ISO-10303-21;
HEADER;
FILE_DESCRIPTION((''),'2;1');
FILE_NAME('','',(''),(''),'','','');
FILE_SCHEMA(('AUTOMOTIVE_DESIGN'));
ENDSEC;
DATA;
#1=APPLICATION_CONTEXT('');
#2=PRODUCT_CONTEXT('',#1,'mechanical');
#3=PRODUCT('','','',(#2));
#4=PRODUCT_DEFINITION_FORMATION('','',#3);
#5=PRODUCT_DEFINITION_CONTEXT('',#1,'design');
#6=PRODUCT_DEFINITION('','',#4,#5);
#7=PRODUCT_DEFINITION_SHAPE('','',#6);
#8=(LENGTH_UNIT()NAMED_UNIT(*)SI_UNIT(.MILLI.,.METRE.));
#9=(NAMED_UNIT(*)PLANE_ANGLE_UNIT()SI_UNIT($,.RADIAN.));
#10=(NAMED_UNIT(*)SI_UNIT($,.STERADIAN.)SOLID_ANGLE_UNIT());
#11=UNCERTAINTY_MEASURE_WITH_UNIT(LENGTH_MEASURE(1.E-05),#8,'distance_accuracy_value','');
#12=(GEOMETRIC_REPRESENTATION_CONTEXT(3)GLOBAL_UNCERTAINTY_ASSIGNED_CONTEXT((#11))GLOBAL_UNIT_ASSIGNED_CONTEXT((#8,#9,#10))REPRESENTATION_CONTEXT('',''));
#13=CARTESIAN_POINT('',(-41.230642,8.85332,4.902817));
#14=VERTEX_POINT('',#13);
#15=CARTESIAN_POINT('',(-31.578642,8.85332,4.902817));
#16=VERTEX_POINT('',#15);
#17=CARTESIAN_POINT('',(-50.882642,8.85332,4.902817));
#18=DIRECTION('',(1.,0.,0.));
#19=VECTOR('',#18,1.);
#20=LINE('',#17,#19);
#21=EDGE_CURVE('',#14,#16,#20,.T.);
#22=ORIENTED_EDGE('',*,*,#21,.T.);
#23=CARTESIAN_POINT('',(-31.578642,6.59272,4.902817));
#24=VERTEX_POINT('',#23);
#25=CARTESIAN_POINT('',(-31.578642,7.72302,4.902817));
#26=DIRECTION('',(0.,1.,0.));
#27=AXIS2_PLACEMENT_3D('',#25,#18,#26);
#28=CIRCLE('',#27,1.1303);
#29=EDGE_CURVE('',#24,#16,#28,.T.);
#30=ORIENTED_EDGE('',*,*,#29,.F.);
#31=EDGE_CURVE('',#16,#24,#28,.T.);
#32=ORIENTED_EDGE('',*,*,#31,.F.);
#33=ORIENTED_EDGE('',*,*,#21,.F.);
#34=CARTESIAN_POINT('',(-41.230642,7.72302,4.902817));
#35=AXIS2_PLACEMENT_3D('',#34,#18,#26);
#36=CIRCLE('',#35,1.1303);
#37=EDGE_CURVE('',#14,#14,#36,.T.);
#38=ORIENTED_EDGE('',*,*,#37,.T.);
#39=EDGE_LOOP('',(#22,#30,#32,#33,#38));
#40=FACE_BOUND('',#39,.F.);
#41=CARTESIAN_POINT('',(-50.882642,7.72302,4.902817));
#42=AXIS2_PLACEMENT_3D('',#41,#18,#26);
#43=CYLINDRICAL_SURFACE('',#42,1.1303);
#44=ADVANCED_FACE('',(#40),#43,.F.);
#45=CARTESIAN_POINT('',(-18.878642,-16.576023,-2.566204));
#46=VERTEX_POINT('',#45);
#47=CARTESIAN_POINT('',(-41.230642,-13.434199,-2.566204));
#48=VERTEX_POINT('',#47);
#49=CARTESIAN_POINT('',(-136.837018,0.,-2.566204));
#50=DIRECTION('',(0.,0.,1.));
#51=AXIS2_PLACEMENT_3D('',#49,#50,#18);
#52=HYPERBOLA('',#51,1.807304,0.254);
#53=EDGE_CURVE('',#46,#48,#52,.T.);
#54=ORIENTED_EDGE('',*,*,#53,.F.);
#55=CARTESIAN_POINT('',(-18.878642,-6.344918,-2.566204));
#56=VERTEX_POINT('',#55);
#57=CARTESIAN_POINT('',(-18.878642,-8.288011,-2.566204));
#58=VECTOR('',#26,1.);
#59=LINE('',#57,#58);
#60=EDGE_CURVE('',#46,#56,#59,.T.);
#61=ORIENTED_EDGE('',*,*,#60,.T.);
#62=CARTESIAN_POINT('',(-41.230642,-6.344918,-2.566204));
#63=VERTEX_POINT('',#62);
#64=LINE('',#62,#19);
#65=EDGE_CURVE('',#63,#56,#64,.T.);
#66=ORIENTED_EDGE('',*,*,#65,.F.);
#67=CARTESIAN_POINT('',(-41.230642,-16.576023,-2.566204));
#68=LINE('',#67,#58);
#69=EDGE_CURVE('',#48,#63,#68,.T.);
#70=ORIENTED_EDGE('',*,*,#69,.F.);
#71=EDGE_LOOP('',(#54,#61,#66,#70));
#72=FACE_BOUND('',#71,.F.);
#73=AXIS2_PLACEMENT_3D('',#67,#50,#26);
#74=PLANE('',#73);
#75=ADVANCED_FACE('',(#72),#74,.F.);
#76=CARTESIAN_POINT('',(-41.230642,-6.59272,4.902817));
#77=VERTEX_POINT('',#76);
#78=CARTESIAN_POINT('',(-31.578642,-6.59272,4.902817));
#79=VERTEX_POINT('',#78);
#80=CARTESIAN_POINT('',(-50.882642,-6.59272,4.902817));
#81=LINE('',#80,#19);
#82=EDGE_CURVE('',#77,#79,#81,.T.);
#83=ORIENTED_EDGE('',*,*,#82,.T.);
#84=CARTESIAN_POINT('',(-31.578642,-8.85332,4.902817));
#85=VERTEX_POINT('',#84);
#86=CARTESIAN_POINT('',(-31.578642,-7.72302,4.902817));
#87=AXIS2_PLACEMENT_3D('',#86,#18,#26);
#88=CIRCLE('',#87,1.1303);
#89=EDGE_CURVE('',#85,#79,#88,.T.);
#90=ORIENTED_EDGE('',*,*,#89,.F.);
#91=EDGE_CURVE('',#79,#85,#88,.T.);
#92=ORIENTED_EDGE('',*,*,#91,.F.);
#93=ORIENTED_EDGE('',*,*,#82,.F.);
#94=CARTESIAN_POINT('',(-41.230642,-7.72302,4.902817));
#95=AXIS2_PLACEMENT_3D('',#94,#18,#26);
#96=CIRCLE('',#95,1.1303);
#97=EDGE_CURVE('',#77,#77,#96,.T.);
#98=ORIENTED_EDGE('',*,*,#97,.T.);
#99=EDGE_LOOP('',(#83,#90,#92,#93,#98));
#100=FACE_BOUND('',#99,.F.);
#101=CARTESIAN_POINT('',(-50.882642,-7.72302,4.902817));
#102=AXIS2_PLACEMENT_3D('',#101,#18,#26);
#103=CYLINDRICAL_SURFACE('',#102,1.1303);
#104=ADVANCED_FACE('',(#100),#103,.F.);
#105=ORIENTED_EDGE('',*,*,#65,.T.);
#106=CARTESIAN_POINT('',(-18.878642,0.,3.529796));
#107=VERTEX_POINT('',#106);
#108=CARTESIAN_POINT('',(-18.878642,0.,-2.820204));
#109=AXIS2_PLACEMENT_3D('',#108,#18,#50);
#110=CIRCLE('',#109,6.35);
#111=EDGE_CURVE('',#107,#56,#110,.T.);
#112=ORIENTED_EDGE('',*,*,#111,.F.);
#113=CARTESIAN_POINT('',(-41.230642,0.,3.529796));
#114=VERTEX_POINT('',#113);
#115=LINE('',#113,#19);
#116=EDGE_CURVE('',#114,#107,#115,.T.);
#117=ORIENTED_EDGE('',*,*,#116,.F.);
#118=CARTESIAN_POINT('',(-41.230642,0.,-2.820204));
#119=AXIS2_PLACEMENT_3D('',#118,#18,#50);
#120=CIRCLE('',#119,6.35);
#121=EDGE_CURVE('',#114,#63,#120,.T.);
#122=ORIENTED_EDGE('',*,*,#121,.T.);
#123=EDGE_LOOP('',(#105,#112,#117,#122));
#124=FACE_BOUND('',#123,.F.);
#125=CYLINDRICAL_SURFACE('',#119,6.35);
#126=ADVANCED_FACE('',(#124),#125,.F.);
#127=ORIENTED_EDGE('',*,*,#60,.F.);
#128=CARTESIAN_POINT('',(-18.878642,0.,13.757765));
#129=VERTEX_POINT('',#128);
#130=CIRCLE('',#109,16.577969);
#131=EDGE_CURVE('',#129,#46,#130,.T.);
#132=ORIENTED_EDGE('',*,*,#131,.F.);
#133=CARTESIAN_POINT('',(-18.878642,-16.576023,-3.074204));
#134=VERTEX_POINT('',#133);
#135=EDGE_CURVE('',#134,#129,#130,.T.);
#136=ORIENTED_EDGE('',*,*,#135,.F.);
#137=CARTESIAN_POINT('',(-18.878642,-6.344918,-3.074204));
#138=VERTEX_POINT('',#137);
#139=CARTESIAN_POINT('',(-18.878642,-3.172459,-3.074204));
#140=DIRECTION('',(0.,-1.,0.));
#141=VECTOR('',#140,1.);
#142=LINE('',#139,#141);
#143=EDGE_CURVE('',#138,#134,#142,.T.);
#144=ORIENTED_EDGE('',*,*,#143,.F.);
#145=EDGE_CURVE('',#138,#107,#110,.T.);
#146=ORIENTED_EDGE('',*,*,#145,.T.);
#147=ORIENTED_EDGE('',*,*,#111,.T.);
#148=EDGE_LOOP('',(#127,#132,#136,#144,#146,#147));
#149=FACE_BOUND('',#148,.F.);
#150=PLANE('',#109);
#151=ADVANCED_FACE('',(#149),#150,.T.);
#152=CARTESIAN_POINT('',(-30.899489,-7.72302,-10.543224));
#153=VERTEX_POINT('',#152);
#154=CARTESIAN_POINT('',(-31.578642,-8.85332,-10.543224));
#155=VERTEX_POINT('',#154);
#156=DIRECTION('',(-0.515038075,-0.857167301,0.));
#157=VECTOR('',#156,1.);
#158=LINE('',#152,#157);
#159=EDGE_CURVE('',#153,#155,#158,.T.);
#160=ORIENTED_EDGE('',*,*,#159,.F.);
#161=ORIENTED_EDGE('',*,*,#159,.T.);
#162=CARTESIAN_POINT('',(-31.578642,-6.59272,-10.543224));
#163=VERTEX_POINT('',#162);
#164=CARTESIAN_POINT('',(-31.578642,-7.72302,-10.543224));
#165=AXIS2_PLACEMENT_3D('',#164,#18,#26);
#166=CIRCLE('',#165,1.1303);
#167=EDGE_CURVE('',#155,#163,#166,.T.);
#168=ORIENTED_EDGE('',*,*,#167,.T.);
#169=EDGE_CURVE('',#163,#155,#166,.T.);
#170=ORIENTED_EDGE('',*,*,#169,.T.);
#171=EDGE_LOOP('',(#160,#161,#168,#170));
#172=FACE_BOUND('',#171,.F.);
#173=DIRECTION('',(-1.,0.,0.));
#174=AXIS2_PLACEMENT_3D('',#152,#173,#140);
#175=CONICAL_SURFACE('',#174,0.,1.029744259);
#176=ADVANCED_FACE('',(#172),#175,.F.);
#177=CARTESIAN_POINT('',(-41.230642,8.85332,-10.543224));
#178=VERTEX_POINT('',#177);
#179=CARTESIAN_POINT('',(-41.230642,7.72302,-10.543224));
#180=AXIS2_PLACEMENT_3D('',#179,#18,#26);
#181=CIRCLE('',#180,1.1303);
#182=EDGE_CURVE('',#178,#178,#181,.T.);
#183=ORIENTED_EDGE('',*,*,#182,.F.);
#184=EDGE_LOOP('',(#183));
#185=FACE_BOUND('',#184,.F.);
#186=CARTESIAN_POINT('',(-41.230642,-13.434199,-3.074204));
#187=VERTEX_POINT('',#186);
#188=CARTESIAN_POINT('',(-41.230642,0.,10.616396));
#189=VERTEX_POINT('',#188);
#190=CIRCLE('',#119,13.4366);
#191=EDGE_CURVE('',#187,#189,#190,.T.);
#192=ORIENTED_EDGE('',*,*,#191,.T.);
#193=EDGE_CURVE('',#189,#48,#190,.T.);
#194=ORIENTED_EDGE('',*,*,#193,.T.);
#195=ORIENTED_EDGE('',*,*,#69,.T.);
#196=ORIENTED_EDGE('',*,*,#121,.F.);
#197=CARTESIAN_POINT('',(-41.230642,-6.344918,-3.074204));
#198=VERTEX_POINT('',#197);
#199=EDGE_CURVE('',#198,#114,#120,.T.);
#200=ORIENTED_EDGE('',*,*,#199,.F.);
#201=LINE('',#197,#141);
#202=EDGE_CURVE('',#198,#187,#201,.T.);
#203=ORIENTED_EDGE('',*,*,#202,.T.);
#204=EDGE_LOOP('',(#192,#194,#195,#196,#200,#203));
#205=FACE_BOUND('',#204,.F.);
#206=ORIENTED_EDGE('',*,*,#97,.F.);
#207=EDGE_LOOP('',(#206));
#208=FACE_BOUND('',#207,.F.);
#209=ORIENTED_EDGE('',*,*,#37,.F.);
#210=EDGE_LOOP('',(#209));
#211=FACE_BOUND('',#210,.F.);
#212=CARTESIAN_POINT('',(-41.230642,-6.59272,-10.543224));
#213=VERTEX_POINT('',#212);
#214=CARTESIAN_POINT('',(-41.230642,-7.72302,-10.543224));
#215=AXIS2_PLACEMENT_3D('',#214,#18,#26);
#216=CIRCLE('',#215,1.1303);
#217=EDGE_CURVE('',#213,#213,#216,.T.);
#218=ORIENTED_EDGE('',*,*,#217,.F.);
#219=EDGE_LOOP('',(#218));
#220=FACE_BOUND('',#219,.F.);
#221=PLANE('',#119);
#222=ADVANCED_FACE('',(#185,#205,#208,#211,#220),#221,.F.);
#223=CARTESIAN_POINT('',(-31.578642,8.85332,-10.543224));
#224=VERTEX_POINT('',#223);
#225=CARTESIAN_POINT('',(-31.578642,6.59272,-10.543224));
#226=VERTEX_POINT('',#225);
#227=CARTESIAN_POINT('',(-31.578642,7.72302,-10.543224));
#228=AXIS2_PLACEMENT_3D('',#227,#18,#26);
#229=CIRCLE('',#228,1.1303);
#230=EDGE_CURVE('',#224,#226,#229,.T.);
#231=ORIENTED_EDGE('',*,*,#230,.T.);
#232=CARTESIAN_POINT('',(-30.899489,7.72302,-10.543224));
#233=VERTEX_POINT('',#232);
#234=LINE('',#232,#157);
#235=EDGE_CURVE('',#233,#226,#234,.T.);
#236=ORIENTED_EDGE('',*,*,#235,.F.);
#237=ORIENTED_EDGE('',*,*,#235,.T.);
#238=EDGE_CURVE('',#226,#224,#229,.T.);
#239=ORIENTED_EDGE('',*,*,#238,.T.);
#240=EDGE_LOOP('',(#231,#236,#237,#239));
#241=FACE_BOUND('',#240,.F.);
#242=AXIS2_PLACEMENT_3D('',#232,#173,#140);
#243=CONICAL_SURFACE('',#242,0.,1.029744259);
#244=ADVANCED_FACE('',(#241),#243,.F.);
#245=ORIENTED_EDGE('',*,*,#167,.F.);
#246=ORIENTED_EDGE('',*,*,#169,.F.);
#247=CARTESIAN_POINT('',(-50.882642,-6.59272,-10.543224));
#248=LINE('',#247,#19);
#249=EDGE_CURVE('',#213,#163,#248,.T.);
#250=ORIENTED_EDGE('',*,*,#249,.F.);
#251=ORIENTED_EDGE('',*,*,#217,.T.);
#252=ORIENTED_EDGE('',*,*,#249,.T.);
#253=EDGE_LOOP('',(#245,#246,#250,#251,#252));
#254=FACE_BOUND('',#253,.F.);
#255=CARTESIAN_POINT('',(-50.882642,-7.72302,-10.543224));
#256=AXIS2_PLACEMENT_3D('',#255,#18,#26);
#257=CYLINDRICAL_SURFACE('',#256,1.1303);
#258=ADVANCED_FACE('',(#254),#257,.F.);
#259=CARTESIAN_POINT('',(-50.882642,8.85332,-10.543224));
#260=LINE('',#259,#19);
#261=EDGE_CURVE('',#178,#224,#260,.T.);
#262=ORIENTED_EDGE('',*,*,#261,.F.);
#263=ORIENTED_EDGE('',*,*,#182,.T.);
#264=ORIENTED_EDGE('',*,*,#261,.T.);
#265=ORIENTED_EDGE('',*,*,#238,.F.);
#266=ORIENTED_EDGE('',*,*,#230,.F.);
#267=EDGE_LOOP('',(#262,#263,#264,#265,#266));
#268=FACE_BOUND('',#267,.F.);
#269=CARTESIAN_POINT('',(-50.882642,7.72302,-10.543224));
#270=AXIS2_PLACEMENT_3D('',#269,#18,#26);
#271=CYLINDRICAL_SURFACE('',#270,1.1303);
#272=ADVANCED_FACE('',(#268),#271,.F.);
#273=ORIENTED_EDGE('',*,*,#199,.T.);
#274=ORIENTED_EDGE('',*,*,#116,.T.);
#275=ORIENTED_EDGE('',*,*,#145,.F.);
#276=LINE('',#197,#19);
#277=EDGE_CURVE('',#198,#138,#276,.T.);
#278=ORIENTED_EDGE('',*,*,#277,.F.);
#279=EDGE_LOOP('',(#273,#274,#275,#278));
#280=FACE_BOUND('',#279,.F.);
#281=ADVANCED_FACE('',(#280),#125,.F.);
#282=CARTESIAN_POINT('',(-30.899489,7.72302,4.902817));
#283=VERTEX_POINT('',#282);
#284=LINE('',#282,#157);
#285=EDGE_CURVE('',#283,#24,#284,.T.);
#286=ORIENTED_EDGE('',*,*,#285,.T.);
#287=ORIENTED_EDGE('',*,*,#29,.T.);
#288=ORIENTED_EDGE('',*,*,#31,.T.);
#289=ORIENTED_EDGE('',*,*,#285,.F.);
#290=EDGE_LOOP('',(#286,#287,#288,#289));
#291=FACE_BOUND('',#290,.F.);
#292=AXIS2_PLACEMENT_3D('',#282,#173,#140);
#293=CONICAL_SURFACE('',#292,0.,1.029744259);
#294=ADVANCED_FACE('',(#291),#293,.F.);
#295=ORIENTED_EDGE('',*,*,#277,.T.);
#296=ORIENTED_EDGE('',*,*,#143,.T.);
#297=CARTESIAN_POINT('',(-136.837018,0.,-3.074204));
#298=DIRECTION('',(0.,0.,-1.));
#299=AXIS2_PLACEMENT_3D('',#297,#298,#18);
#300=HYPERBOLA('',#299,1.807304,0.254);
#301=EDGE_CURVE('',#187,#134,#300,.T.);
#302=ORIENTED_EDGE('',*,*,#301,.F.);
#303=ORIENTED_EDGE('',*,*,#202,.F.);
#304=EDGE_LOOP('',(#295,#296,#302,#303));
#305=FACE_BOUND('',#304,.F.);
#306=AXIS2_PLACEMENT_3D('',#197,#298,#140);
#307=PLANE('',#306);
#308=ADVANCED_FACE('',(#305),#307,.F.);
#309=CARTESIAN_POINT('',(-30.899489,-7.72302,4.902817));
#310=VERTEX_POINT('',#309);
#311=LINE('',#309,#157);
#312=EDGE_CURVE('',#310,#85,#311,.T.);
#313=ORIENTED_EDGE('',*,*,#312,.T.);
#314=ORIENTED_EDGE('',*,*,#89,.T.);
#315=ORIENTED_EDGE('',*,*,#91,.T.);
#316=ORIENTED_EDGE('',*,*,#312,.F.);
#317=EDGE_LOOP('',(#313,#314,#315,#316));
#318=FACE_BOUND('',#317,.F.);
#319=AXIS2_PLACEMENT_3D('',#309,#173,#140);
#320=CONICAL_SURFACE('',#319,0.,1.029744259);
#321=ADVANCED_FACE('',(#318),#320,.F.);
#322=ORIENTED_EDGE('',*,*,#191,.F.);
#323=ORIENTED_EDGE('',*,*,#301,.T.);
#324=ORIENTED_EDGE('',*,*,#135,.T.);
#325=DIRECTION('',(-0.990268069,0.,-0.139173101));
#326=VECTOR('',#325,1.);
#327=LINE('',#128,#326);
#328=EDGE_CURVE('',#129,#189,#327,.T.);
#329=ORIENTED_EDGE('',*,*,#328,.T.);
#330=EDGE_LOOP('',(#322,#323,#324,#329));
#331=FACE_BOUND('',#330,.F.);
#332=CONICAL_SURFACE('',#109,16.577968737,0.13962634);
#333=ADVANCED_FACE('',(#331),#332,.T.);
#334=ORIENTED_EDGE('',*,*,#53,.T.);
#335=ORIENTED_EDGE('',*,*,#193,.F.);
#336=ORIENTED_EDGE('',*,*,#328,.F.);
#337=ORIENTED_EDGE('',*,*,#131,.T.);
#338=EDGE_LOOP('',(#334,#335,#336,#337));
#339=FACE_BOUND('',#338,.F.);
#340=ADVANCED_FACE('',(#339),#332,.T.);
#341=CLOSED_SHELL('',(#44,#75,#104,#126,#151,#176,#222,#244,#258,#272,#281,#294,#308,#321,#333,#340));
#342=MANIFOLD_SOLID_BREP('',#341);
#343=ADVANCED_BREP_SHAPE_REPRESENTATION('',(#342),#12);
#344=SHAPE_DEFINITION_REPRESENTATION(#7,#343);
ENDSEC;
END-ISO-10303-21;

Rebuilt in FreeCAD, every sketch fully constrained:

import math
import FreeCAD as App
import Part
import Sketcher

V = App.Vector
Q = App.Units.Quantity

doc = App.newDocument("Part")
body = doc.addObject("PartDesign::Body", "Body")

# Sketch on XZ plane
sketch1 = body.newObject("Sketcher::SketchObject", "Sketch")
sketch1.AttachmentSupport = (doc.getObject("XZ_Plane"), [""])
sketch1.MapMode = "FlatFace"
sketch1.addGeometry([
    Part.LineSegment(V(-19, 14, 0), V(-41, 11, 0)),
    Part.LineSegment(V(-41, 11, 0), V(-41, 4, 0)),
    Part.LineSegment(V(-41, 4, 0), V(-19, 4, 0)),
    Part.LineSegment(V(-19, 4, 0), V(-19, 14, 0)),
], False)
sketch1.addGeometry(Part.LineSegment(V(-41, -3, 0), V(-19, -3, 0)), True)  # axis
sketch1.addConstraint([
    Sketcher.Constraint("Coincident", 0, 2, 1, 1),
    Sketcher.Constraint("Coincident", 1, 2, 2, 1),
    Sketcher.Constraint("Coincident", 2, 2, 3, 1),
    Sketcher.Constraint("Coincident", 3, 2, 0, 1),
    Sketcher.Constraint("Vertical", 1),
    Sketcher.Constraint("Horizontal", 2),
    Sketcher.Constraint("Vertical", 3),
    Sketcher.Constraint("Horizontal", 4),
    Sketcher.Constraint("Vertical", 1, 2, 4, 1),
    Sketcher.Constraint("Vertical", 3, 2, 4, 2),
    Sketcher.Constraint("Angle", 0, Q("-172 deg")),
    Sketcher.Constraint("DistanceX", 2, 1, 2, 2, Q("0.88 in")),
    Sketcher.Constraint("DistanceY", 1, 2, 1, 1, Q("0.279 in")),
    Sketcher.Constraint("DistanceY", 4, 1, 1, 2, Q("0.25 in")),
    Sketcher.Constraint("DistanceX", 0, 2, -1, 1, 41.230642),
    Sketcher.Constraint("DistanceY", -1, 1, 0, 2, 10.616396),
])
revolution = body.newObject("PartDesign::Revolution", "Revolution")
revolution.Profile = sketch1
revolution.ReferenceAxis = (sketch1, ["Axis0"])
revolution.Angle = 360

# Sketch on YZ plane
sketch2 = body.newObject("Sketcher::SketchObject", "Sketch001")
sketch2.AttachmentSupport = (doc.getObject("YZ_Plane"), [""])
sketch2.MapMode = "FlatFace"
sketch2.AttachmentOffset = App.Placement(V(0, 0, -41.230642), App.Rotation())
sketch2.addGeometry([
    Part.ArcOfCircle(Part.Circle(V(0, -2.82, 0), V(0, 0, 1), 6.35), math.radians(177.71), math.radians(180)),  # 0
    Part.ArcOfCircle(Part.Circle(V(0, -2.82, 0), V(0, 0, 1), 6.35), math.radians(180), math.radians(182.29)),  # 1
    Part.LineSegment(V(-6.34, -3.07, 0), V(-16.58, -3.07, 0)),  # 2
    Part.ArcOfCircle(Part.Circle(V(0, -2.82, 0), V(0, 0, 1), 16.58), math.radians(-180), math.radians(-179.12)),  # 3
    Part.ArcOfCircle(Part.Circle(V(0, -2.82, 0), V(0, 0, 1), 16.58), math.radians(179.12), math.radians(180)),  # 4
    Part.LineSegment(V(-16.58, -2.57, 0), V(-6.34, -2.57, 0)),  # 5
], False)
sketch2.addConstraint([
    Sketcher.Constraint("Tangent", 0, 2, 1, 1),
    Sketcher.Constraint("Coincident", 1, 2, 2, 1),
    Sketcher.Constraint("Coincident", 2, 2, 3, 2),
    Sketcher.Constraint("Tangent", 3, 1, 4, 2),
    Sketcher.Constraint("Coincident", 4, 1, 5, 1),
    Sketcher.Constraint("Coincident", 5, 2, 0, 1),
    Sketcher.Constraint("Horizontal", 2),
    Sketcher.Constraint("Horizontal", 5),
    Sketcher.Constraint("Coincident", 3, 3, 0, 3),
    Sketcher.Constraint("Equal", 0, 1),
    Sketcher.Constraint("Equal", 3, 4),
    Sketcher.Constraint("PointOnObject", 0, 3, -2),
    Sketcher.Constraint("Horizontal", 4, 3, 0, 2),
    Sketcher.Constraint("Horizontal", 0, 2, 3, 1),
    Sketcher.Constraint("Vertical", 2, 2, 4, 1),
    Sketcher.Constraint("Radius", 0, Q("0.25 in")),
    Sketcher.Constraint("DistanceY", 1, 2, 0, 2, Q("0.01 in")),
    Sketcher.Constraint("Radius", 3, 16.57797),
    Sketcher.Constraint("DistanceY", 0, 3, -1, 1, 2.820204),
])
pocket1 = body.newObject("PartDesign::Pocket", "Pocket")
pocket1.Profile = sketch2
pocket1.Type = "ThroughAll"
pocket1.Reversed = True

# Sketch on YZ plane
sketch3 = body.newObject("Sketcher::SketchObject", "Sketch002")
sketch3.AttachmentSupport = (doc.getObject("YZ_Plane"), [""])
sketch3.MapMode = "FlatFace"
sketch3.AttachmentOffset = App.Placement(V(0, 0, -41.230642), App.Rotation())
sketch3.addGeometry([
    Part.Circle(V(7.7, 4.9, 0), V(0, 0, 1), 1.1),
    Part.Circle(V(-7.7, 4.9, 0), V(0, 0, 1), 1.1),
    Part.Circle(V(-7.7, -10.5, 0), V(0, 0, 1), 1.1),
    Part.Circle(V(7.7, -10.5, 0), V(0, 0, 1), 1.1),
], False)
sketch3.addConstraint([
    Sketcher.Constraint("Equal", 0, 1),
    Sketcher.Constraint("Equal", 1, 2),
    Sketcher.Constraint("Equal", 2, 3),
    Sketcher.Constraint("Symmetric", 0, 3, 1, 3, -2),
    Sketcher.Constraint("Symmetric", 2, 3, 3, 3, -2),
    Sketcher.Constraint("Vertical", 1, 3, 2, 3),
    Sketcher.Constraint("Diameter", 0, Q("0.089 in")),
    Sketcher.Constraint("DistanceX", -1, 1, 0, 3, 7.72302),
    Sketcher.Constraint("DistanceY", 2, 3, 1, 3, 15.446041),
    Sketcher.Constraint("DistanceY", -1, 1, 0, 3, 4.902817),
])
doc.recompute()
hole = body.newObject("PartDesign::Hole", "Hole")
hole.Profile = sketch3
hole.ThreadType = "None"
hole.Diameter = Q("0.089 in")
hole.DepthType = "Dimension"
hole.Depth = Q("0.38 in")
hole.DrillPoint = "Angled"
hole.DrillPointAngle = 118
hole.Reversed = True

doc.recompute()
